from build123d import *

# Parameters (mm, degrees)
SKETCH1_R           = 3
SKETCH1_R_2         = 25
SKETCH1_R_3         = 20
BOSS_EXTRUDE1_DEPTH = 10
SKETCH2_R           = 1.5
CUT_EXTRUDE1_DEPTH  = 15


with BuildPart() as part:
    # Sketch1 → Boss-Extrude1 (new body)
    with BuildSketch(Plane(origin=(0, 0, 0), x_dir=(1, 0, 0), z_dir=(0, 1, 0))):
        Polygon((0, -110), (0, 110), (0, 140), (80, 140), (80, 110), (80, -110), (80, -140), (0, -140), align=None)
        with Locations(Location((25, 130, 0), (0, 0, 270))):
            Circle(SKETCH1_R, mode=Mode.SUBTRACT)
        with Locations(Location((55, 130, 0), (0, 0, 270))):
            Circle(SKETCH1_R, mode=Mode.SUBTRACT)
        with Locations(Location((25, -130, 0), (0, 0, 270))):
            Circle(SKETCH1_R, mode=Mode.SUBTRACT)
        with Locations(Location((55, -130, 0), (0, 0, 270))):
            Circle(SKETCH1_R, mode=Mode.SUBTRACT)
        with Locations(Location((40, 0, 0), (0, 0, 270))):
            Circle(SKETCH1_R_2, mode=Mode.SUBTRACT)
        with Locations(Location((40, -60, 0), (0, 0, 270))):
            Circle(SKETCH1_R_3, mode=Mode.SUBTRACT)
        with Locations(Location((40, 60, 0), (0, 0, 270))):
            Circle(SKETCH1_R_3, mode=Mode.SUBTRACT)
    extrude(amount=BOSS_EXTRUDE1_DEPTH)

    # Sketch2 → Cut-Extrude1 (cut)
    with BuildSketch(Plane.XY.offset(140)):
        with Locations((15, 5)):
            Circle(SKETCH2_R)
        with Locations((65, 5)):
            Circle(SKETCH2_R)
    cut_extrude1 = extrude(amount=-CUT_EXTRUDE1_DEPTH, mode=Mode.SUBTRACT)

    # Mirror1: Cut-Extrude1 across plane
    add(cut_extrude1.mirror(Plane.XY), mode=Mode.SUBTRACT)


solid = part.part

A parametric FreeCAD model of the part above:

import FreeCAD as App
import Part
import Sketcher

doc = App.newDocument("Part")
body = doc.addObject("PartDesign::Body", "Body")

sketch1 = body.newObject("Sketcher::SketchObject", "Sketch")
sketch1.AttachmentSupport = (doc.getObject("XZ_Plane"), [""])
sketch1.MapMode = "FlatFace"
sketch1.addGeometry([
    Part.LineSegment(App.Vector(0, -140, 0), App.Vector(0, 140, 0)),
    Part.LineSegment(App.Vector(0, 140, 0), App.Vector(80, 140, 0)),
    Part.LineSegment(App.Vector(80, 140, 0), App.Vector(80, -140, 0)),
    Part.LineSegment(App.Vector(80, -140, 0), App.Vector(0, -140, 0)),
    Part.Circle(App.Vector(55, 130, 0), App.Vector(0, 0, 1), 3),
    Part.Circle(App.Vector(25, 130, 0), App.Vector(0, 0, 1), 3),
    Part.Circle(App.Vector(40, 60, 0), App.Vector(0, 0, 1), 20),
    Part.Circle(App.Vector(55, -130, 0), App.Vector(0, 0, 1), 3),
    Part.Circle(App.Vector(40, 0, 0), App.Vector(0, 0, 1), 25),
    Part.Circle(App.Vector(40, -60, 0), App.Vector(0, 0, 1), 20),
    Part.Circle(App.Vector(25, -130, 0), App.Vector(0, 0, 1), 3),
], False)
sketch1.addConstraint([
    Sketcher.Constraint("Coincident", 0, 2, 1, 1),
    Sketcher.Constraint("Coincident", 1, 2, 2, 1),
    Sketcher.Constraint("Coincident", 2, 2, 3, 1),
    Sketcher.Constraint("Coincident", 3, 2, 0, 1),
    Sketcher.Constraint("Vertical", 0),
    Sketcher.Constraint("Horizontal", 1),
    Sketcher.Constraint("Vertical", 2),
    Sketcher.Constraint("Horizontal", 3),
    Sketcher.Constraint("Equal", 4, 5),
    Sketcher.Constraint("Equal", 5, 7),
    Sketcher.Constraint("Equal", 6, 9),
    Sketcher.Constraint("Equal", 7, 10),
    Sketcher.Constraint("Symmetric", 0, 2, 3, 2, -1, 1),
    Sketcher.Constraint("Symmetric", 4, 3, 7, 3, -1),
    Sketcher.Constraint("Symmetric", 6, 3, 9, 3, -1),
    Sketcher.Constraint("Symmetric", 5, 3, 10, 3, -1),
    Sketcher.Constraint("PointOnObject", 8, 3, -1),
    Sketcher.Constraint("Horizontal", 4, 3, 5, 3),
    Sketcher.Constraint("Vertical", 6, 3, 8, 3),
    Sketcher.Constraint("Diameter", 4, 6.0),
    Sketcher.Constraint("Diameter", 6, 40.0),
    Sketcher.Constraint("Diameter", 8, 50.0),
    Sketcher.Constraint("DistanceX", 1, 1, 1, 2, 80.0),
    Sketcher.Constraint("DistanceY", 0, 1, 0, 2, 280.0),
    Sketcher.Constraint("DistanceX", -1, 1, 4, 3, 55.0),
    Sketcher.Constraint("DistanceY", -1, 1, 4, 3, 130.0),
    Sketcher.Constraint("DistanceX", -1, 1, 5, 3, 25.0),
    Sketcher.Constraint("DistanceX", -1, 1, 6, 3, 40.0),
    Sketcher.Constraint("DistanceY", -1, 1, 6, 3, 60.0),
])
pad1 = body.newObject("PartDesign::Pad", "Pad")
pad1.Profile = sketch1
pad1.Length = 10
pad1.Reversed = True

sketch2 = body.newObject("Sketcher::SketchObject", "Sketch001")
sketch2.AttachmentSupport = (doc.getObject("XY_Plane"), [""])
sketch2.MapMode = "FlatFace"
sketch2.AttachmentOffset = App.Placement(App.Vector(0, 0, 140), App.Rotation())
sketch2.addGeometry([
    Part.Circle(App.Vector(15, 5, 0), App.Vector(0, 0, 1), 1.5),
    Part.Circle(App.Vector(65, 5, 0), App.Vector(0, 0, 1), 1.5),
], False)
sketch2.addConstraint([
    Sketcher.Constraint("Equal", 0, 1),
    Sketcher.Constraint("Horizontal", 0, 3, 1, 3),
    Sketcher.Constraint("Diameter", 0, 3.0),
    Sketcher.Constraint("DistanceX", -1, 1, 0, 3, 15.0),
    Sketcher.Constraint("DistanceY", -1, 1, 0, 3, 5.0),
    Sketcher.Constraint("DistanceX", -1, 1, 1, 3, 65.0),
])
pocket1 = body.newObject("PartDesign::Pocket", "Pocket")
pocket1.Profile = sketch2
pocket1.Length = 15
doc.recompute()

mirrored = body.newObject("PartDesign::Mirrored", "Mirrored")
mirrored.Originals = [pocket1]
mirrored.MirrorPlane = (doc.getObject("XY_Plane"), [""])
body.Tip = mirrored

doc.recompute()
